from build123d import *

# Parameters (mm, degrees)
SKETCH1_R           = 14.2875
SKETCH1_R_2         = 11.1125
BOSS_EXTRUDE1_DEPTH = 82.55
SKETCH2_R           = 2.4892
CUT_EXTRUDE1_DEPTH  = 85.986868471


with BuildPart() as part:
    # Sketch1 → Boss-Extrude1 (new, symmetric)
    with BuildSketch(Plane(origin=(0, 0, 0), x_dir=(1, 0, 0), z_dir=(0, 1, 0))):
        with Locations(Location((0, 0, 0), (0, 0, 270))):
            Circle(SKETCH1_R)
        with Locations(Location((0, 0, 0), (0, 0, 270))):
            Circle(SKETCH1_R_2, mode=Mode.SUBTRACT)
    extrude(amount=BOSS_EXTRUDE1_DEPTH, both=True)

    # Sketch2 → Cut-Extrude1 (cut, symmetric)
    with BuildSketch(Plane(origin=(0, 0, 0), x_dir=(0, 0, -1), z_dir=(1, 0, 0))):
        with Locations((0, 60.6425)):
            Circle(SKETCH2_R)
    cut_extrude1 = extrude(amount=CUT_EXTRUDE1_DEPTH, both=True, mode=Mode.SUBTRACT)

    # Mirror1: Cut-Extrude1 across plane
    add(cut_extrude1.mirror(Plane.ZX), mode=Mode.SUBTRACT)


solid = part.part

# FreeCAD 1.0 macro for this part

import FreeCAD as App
import Part
import Sketcher
from FreeCAD import Vector
Q = App.Units.Quantity

doc = App.newDocument("Part")
body = doc.addObject("PartDesign::Body", "Body")

# Sketch on XZ plane
sketch1 = body.newObject("Sketcher::SketchObject", "Sketch")
sketch1.AttachmentSupport = (doc.getObject("XZ_Plane"), [""])
sketch1.MapMode = "FlatFace"
sketch1.addGeometry(Part.Circle(Vector(0, 0, 0), Vector(0, 0, 1), 14), False)
sketch1.addGeometry(Part.Circle(Vector(0, 0, 0), Vector(0, 0, 1), 11), False)
sketch1.addConstraint(Sketcher.Constraint("Coincident", 0, 3, -1, 1))
sketch1.addConstraint(Sketcher.Constraint("Coincident", 1, 3, -1, 1))
sketch1.addConstraint(Sketcher.Constraint("Diameter", 0, Q("1.125 in")))
sketch1.addConstraint(Sketcher.Constraint("Diameter", 1, Q("0.875 in")))
pad1 = body.newObject("PartDesign::Pad", "Pad")
pad1.Profile = sketch1
pad1.Length = Q("6.5 in")
pad1.Midplane = True

# Sketch on YZ plane
sketch2 = body.newObject("Sketcher::SketchObject", "Sketch001")
sketch2.AttachmentSupport = (doc.getObject("YZ_Plane"), [""])
sketch2.MapMode = "FlatFace"
sketch2.addGeometry(Part.Circle(Vector(60.6, 0, 0), Vector(0, 0, 1), 2.5), False)
sketch2.addConstraint(Sketcher.Constraint("PointOnObject", 0, 3, -1))
sketch2.addConstraint(Sketcher.Constraint("Diameter", 0, Q("0.196 in")))
sketch2.addConstraint(Sketcher.Constraint("DistanceX", -1, 1, 0, 3, Q("2.3875 in")))
pocket1 = body.newObject("PartDesign::Pocket", "Pocket")
pocket1.Profile = sketch2
pocket1.Length = 171.973737
pocket1.Midplane = True
doc.recompute()

mirrored = body.newObject("PartDesign::Mirrored", "Mirrored")
mirrored.Originals = [pocket1]
mirrored.MirrorPlane = (doc.getObject("XZ_Plane"), [""])
body.Tip = mirrored

doc.recompute()
